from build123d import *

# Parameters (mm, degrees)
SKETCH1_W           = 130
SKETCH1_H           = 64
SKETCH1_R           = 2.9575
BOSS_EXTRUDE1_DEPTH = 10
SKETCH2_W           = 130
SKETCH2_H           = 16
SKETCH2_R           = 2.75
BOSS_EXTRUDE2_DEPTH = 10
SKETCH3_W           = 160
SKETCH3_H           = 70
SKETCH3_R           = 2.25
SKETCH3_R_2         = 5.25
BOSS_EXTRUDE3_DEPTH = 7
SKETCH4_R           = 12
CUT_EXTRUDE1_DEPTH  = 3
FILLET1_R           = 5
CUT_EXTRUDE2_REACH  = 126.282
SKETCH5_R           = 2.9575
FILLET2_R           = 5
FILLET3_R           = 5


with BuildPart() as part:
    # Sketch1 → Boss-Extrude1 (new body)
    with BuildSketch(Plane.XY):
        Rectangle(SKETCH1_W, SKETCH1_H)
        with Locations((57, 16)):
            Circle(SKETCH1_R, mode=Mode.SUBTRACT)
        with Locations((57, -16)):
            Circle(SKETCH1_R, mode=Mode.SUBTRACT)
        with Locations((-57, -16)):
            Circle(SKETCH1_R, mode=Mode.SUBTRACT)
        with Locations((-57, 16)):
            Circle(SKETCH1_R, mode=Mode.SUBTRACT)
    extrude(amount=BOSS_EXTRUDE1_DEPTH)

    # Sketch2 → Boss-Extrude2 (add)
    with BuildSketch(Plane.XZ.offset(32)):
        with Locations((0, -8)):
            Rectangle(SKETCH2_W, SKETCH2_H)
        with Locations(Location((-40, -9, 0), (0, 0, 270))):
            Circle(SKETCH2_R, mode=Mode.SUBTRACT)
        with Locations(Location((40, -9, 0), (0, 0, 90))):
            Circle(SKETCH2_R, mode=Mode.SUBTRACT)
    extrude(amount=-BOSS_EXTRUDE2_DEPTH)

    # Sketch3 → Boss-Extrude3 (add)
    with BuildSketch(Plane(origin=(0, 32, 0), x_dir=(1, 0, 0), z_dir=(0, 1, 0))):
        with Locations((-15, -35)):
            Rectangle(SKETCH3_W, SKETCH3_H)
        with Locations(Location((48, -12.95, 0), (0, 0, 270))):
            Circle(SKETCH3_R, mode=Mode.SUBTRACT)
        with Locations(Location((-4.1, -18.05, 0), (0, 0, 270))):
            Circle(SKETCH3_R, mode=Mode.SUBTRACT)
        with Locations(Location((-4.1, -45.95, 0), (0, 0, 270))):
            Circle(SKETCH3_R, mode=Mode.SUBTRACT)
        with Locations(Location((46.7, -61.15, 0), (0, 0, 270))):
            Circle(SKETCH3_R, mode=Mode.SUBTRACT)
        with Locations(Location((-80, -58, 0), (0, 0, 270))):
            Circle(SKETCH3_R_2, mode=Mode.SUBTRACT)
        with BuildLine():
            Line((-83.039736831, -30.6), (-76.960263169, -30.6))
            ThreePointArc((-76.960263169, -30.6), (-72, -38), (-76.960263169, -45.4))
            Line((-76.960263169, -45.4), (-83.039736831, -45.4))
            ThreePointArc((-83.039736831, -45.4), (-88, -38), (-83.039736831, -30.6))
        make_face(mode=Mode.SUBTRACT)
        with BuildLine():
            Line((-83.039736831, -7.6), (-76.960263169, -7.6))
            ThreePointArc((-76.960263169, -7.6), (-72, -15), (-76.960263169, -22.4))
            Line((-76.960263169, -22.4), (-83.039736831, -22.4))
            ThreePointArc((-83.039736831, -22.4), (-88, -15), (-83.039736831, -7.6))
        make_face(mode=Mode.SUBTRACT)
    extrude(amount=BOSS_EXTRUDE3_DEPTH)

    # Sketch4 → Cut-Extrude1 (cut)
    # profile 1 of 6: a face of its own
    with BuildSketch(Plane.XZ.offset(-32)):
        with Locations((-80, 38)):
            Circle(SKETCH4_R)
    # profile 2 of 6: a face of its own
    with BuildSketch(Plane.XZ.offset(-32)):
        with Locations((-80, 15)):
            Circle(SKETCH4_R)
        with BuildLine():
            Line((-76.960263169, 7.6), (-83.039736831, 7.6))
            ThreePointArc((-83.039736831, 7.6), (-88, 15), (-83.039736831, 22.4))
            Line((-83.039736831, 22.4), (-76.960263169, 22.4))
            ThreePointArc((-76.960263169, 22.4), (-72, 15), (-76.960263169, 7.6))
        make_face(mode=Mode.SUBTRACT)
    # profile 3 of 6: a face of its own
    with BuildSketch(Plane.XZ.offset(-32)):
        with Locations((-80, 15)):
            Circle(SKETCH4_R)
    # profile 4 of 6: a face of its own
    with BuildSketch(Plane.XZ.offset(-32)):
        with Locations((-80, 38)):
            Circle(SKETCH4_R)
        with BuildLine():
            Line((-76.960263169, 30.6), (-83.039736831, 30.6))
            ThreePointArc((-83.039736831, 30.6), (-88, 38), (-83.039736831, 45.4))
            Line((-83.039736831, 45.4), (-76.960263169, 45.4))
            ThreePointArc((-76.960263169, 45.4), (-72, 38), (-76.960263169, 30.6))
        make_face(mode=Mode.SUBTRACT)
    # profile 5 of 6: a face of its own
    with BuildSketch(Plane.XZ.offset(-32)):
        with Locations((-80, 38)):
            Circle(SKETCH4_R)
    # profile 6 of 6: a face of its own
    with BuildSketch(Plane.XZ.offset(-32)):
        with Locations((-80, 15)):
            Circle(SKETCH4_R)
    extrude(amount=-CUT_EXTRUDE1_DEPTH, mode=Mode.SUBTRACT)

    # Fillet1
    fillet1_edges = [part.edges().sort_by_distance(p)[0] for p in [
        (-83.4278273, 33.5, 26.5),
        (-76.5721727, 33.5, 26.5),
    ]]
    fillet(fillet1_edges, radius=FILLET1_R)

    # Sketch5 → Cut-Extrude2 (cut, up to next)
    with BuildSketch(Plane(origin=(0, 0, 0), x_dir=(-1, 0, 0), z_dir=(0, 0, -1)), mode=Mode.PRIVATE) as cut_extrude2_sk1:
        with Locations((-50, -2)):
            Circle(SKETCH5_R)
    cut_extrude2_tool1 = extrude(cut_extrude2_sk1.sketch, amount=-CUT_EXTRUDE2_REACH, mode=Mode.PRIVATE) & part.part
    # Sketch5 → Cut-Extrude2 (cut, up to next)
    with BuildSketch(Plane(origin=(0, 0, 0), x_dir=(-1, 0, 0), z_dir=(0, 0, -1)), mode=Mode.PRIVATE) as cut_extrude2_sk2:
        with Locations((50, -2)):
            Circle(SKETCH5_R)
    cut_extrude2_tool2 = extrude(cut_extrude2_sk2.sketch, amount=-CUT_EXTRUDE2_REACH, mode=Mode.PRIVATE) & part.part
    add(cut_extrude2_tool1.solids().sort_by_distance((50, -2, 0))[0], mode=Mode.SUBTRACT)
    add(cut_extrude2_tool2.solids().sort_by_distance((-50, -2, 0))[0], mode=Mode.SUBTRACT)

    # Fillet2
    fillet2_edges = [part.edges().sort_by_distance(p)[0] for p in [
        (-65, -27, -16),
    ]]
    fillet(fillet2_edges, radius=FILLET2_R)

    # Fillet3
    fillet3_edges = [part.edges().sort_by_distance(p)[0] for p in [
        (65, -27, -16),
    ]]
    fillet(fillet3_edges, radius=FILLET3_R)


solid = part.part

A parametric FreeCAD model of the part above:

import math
import FreeCAD as App
import Part
import Sketcher
from FreeCAD import Vector


def edges_at(feature, points):
    """Names of the edges that pass closest to the given points."""
    edges = feature.Shape.Edges
    near = lambda p: min(range(len(edges)), key=lambda i: edges[i].distToShape(Part.Vertex(*p))[0])
    return sorted({f"Edge{near(p) + 1}" for p in points})


def add_polygon(sketch, points):
    """Adds a closed chain of lines whose ends are joined by coincident constraints."""
    first, n = sketch.GeometryCount, len(points)
    for a, b in zip(points, points[1:] + points[:1]):
        sketch.addGeometry(Part.LineSegment(App.Vector(*a, 0), App.Vector(*b, 0)), False)
    for i in range(n):
        sketch.addConstraint(Sketcher.Constraint("Coincident", first + i, 2, first + (i + 1) % n, 1))

doc = App.newDocument("Part")
body = doc.addObject("PartDesign::Body", "Body")

# Sketch on XY plane
sketch1 = body.newObject("Sketcher::SketchObject", "Sketch")
sketch1.AttachmentSupport = (doc.getObject("XY_Plane"), [""])
sketch1.MapMode = "FlatFace"
add_polygon(sketch1, [(-65, 32), (-65, -32), (65, -32), (65, 32)])  # lines 0-3
sketch1.addGeometry(Part.Circle(Vector(-57, -16, 0), Vector(0, 0, 1), 3), False)  # 4
sketch1.addGeometry(Part.Circle(Vector(57, -16, 0), Vector(0, 0, 1), 3), False)  # 5
sketch1.addGeometry(Part.Circle(Vector(-57, 16, 0), Vector(0, 0, 1), 3), False)  # 6
sketch1.addGeometry(Part.Circle(Vector(57, 16, 0), Vector(0, 0, 1), 3), False)  # 7
sketch1.addConstraint([
    Sketcher.Constraint("Vertical", 0),
    Sketcher.Constraint("Horizontal", 1),
    Sketcher.Constraint("Vertical", 2),
    Sketcher.Constraint("Horizontal", 3),
    Sketcher.Constraint("Equal", 4, 5),
    Sketcher.Constraint("Equal", 5, 6),
    Sketcher.Constraint("Equal", 6, 7),
    Sketcher.Constraint("Symmetric", 5, 3, 6, 3, -1, 1),
    Sketcher.Constraint("Symmetric", 4, 3, 7, 3, -1, 1),
    Sketcher.Constraint("Symmetric", 0, 2, 2, 2, -1, 1),
    Sketcher.Constraint("Symmetric", 4, 3, 5, 3, -2),
    Sketcher.Constraint("DistanceX", 1, 1, 1, 2, 130.0),
    Sketcher.Constraint("DistanceY", 0, 2, 0, 1, 64.0),
    Sketcher.Constraint("Diameter", 4, 5.915),
    Sketcher.Constraint("DistanceX", 4, 3, -1, 1, 57.0),
    Sketcher.Constraint("DistanceY", 4, 3, -1, 1, 16.0),
])
pad1 = body.newObject("PartDesign::Pad", "Pad")
pad1.Profile = sketch1
pad1.Length = 10

# Sketch on XZ plane
sketch2 = body.newObject("Sketcher::SketchObject", "Sketch001")
sketch2.AttachmentSupport = (doc.getObject("XZ_Plane"), [""])
sketch2.MapMode = "FlatFace"
sketch2.AttachmentOffset = App.Placement(Vector(0, 0, 32), App.Rotation())
add_polygon(sketch2, [(-65, 0), (-65, -16), (65, -16), (65, 0)])  # lines 0-3
sketch2.addGeometry(Part.Circle(Vector(-40, -9, 0), Vector(0, 0, 1), 2.8), False)  # 4
sketch2.addGeometry(Part.Circle(Vector(40, -9, 0), Vector(0, 0, 1), 2.8), False)  # 5
sketch2.addConstraint([
    Sketcher.Constraint("Vertical", 0),
    Sketcher.Constraint("Horizontal", 1),
    Sketcher.Constraint("Vertical", 2),
    Sketcher.Constraint("Horizontal", 3),
    Sketcher.Constraint("Equal", 4, 5),
    Sketcher.Constraint("Symmetric", 2, 2, 3, 2, -1, 1),
    Sketcher.Constraint("Symmetric", 4, 3, 5, 3, -2),
    Sketcher.Constraint("Diameter", 4, 5.5),
    Sketcher.Constraint("DistanceX", 1, 1, 1, 2, 130.0),
    Sketcher.Constraint("DistanceY", 0, 2, 0, 1, 16.0),
    Sketcher.Constraint("DistanceX", 4, 3, -1, 1, 40.0),
    Sketcher.Constraint("DistanceY", 4, 3, -1, 1, 9.0),
])
pad2 = body.newObject("PartDesign::Pad", "Pad001")
pad2.Profile = sketch2
pad2.Length = 10
pad2.Reversed = True

# Sketch on XZ plane
sketch3 = body.newObject("Sketcher::SketchObject", "Sketch002")
sketch3.AttachmentSupport = (doc.getObject("XZ_Plane"), [""])
sketch3.MapMode = "FlatFace"
sketch3.AttachmentOffset = App.Placement(Vector(0, 0, -32), App.Rotation())
add_polygon(sketch3, [(-95, 0), (-95, 70), (65, 70), (65, 0)])  # lines 0-3
sketch3.addGeometry(Part.Circle(Vector(-80, 58, 0), Vector(0, 0, 1), 5.2), False)  # 4
sketch3.addGeometry(Part.ArcOfCircle(Part.Circle(Vector(-80, 38, 0), Vector(0, 0, 1), 8), math.radians(112), math.radians(248)), False)  # 5
sketch3.addGeometry(Part.LineSegment(Vector(-83, 30.6, 0), Vector(-77, 30.6, 0)), False)  # 6
sketch3.addGeometry(Part.ArcOfCircle(Part.Circle(Vector(-80, 38, 0), Vector(0, 0, 1), 8), math.radians(-68), math.radians(68)), False)  # 7
sketch3.addGeometry(Part.LineSegment(Vector(-77, 45.4, 0), Vector(-83, 45.4, 0)), False)  # 8
sketch3.addGeometry(Part.Circle(Vector(46.7, 61.1, 0), Vector(0, 0, 1), 2.2), False)  # 9
sketch3.addGeometry(Part.Circle(Vector(-4.1, 46, 0), Vector(0, 0, 1), 2.2), False)  # 10
sketch3.addGeometry(Part.ArcOfCircle(Part.Circle(Vector(-80, 15, 0), Vector(0, 0, 1), 8), math.radians(112), math.radians(248)), False)  # 11
sketch3.addGeometry(Part.LineSegment(Vector(-83, 7.6, 0), Vector(-77, 7.6, 0)), False)  # 12
sketch3.addGeometry(Part.ArcOfCircle(Part.Circle(Vector(-80, 15, 0), Vector(0, 0, 1), 8), math.radians(-68), math.radians(68)), False)  # 13
sketch3.addGeometry(Part.LineSegment(Vector(-77, 22.4, 0), Vector(-83, 22.4, 0)), False)  # 14
sketch3.addGeometry(Part.Circle(Vector(-4.1, 18.1, 0), Vector(0, 0, 1), 2.2), False)  # 15
sketch3.addGeometry(Part.Circle(Vector(48, 12.9, 0), Vector(0, 0, 1), 2.2), False)  # 16
sketch3.addConstraint([
    Sketcher.Constraint("Coincident", 5, 2, 6, 1),
    Sketcher.Constraint("Coincident", 6, 2, 7, 1),
    Sketcher.Constraint("Coincident", 7, 2, 8, 1),
    Sketcher.Constraint("Coincident", 8, 2, 5, 1),
    Sketcher.Constraint("Coincident", 11, 2, 12, 1),
    Sketcher.Constraint("Coincident", 12, 2, 13, 1),
    Sketcher.Constraint("Coincident", 13, 2, 14, 1),
    Sketcher.Constraint("Coincident", 14, 2, 11, 1),
    Sketcher.Constraint("Vertical", 0),
    Sketcher.Constraint("Horizontal", 1),
    Sketcher.Constraint("Vertical", 2),
    Sketcher.Constraint("Horizontal", 3),
    Sketcher.Constraint("Horizontal", 6),
    Sketcher.Constraint("Horizontal", 8),
    Sketcher.Constraint("Horizontal", 12),
    Sketcher.Constraint("Horizontal", 14),
    Sketcher.Constraint("Coincident", 7, 3, 5, 3),
    Sketcher.Constraint("Coincident", 13, 3, 11, 3),
    Sketcher.Constraint("Equal", 5, 7),
    Sketcher.Constraint("Equal", 9, 10),
    Sketcher.Constraint("Equal", 7, 11),
    Sketcher.Constraint("Equal", 11, 13),
    Sketcher.Constraint("Equal", 10, 15),
    Sketcher.Constraint("Equal", 15, 16),
    Sketcher.Constraint("PointOnObject", 2, 2, -1),
    Sketcher.Constraint("Vertical", 4, 3, 5, 3),
    Sketcher.Constraint("Vertical", 7, 3, 11, 3),
    Sketcher.Constraint("Vertical", 10, 3, 15, 3),
    Sketcher.Constraint("Vertical", 6, 2, 7, 2),
    Sketcher.Constraint("Vertical", 8, 2, 11, 2),
    Sketcher.Constraint("Vertical", 12, 2, 13, 2),
    Sketcher.Constraint("Radius", 5, 8.0),
    Sketcher.Constraint("Diameter", 4, 10.5),
    Sketcher.Constraint("Diameter", 9, 4.5),
    Sketcher.Constraint("DistanceX", 1, 1, 1, 2, 160.0),
    Sketcher.Constraint("DistanceY", 0, 1, 0, 2, 70.0),
    Sketcher.Constraint("DistanceX", 4, 3, -1, 1, 80.0),
    Sketcher.Constraint("DistanceY", -1, 1, 4, 3, 58.0),
    Sketcher.Constraint("DistanceY", -1, 1, 5, 3, 38.0),
    Sketcher.Constraint("DistanceY", -1, 1, 11, 3, 15.0),
    Sketcher.Constraint("DistanceX", -1, 1, 16, 3, 48.0),
    Sketcher.Constraint("DistanceX", 0, 2, -1, 1, 95.0),
    Sketcher.Constraint("DistanceY", 16, 3, 10, 3, 33.0),
    Sketcher.Constraint("DistanceX", -1, 1, 9, 3, 46.7),
    Sketcher.Constraint("DistanceX", 10, 3, -1, 1, 4.1),
    Sketcher.Constraint("DistanceY", -1, 1, 5, 2, 30.6),
    Sketcher.Constraint("DistanceY", 10, 3, 9, 3, 15.2),
    Sketcher.Constraint("DistanceY", 15, 3, 10, 3, 27.9),
    Sketcher.Constraint("DistanceY", -1, 1, 9, 3, 61.15),
])
pad3 = body.newObject("PartDesign::Pad", "Pad002")
pad3.Profile = sketch3
pad3.Length = 7
pad3.Reversed = True

# Sketch on XZ plane
sketch4 = body.newObject("Sketcher::SketchObject", "Sketch003")
sketch4.AttachmentSupport = (doc.getObject("XZ_Plane"), [""])
sketch4.MapMode = "FlatFace"
sketch4.AttachmentOffset = App.Placement(Vector(0, 0, -32), App.Rotation())
sketch4.addGeometry([
    Part.ArcOfCircle(Part.Circle(Vector(-80, 38, 0), Vector(0, 0, 1), 12), math.radians(-73), math.radians(253)),
    Part.ArcOfCircle(Part.Circle(Vector(-80, 15, 0), Vector(0, 0, 1), 12), math.radians(107), math.radians(433)),
], False)
sketch4.addConstraint([
    Sketcher.Constraint("Coincident", 0, 1, 1, 2),
    Sketcher.Constraint("Coincident", 1, 1, 0, 2),
    Sketcher.Constraint("Equal", 0, 1),
    Sketcher.Constraint("Horizontal", 0, 1, 1, 1),
    Sketcher.Constraint("Radius", 0, 12.0),
    Sketcher.Constraint("DistanceX", 0, 3, -1, 1, 80.0),
    Sketcher.Constraint("DistanceY", -1, 1, 0, 3, 38.0),
    Sketcher.Constraint("DistanceY", -1, 1, 1, 3, 15.0),
])
pocket1 = body.newObject("PartDesign::Pocket", "Pocket")
pocket1.Profile = sketch4
pocket1.Length = 3
doc.recompute()

fillet = body.newObject("PartDesign::Fillet", "Fillet")
fillet.Base = (pocket1, edges_at(pocket1, [(-83.428, 33.5, 26.5), (-76.572, 33.5, 26.5)]))
fillet.Radius = 5

# Sketch on XY plane
sketch5 = body.newObject("Sketcher::SketchObject", "Sketch004")
sketch5.AttachmentSupport = (doc.getObject("XY_Plane"), [""])
sketch5.MapMode = "FlatFace"
sketch5.addGeometry(Part.Circle(Vector(50, -2, 0), Vector(0, 0, 1), 3), False)
sketch5.addConstraint([
    Sketcher.Constraint("Diameter", 0, 5.915),
    Sketcher.Constraint("DistanceX", -1, 1, 0, 3, 50.0),
    Sketcher.Constraint("DistanceY", 0, 3, -1, 1, 2.0),
])
pocket2 = body.newObject("PartDesign::Pocket", "Pocket001")
pocket2.Profile = sketch5
pocket2.Type = "UpToFirst"
pocket2.Reversed = True

# Sketch on XY plane
sketch6 = body.newObject("Sketcher::SketchObject", "Sketch005")
sketch6.AttachmentSupport = (doc.getObject("XY_Plane"), [""])
sketch6.MapMode = "FlatFace"
sketch6.addGeometry(Part.Circle(Vector(-50, -2, 0), Vector(0, 0, 1), 3), False)
sketch6.addConstraint([
    Sketcher.Constraint("Diameter", 0, 5.915),
    Sketcher.Constraint("DistanceX", 0, 3, -1, 1, 50.0),
    Sketcher.Constraint("DistanceY", 0, 3, -1, 1, 2.0),
])
pocket3 = body.newObject("PartDesign::Pocket", "Pocket002")
pocket3.Profile = sketch6
pocket3.Type = "UpToFirst"
pocket3.Reversed = True
doc.recompute()

fillet2 = body.newObject("PartDesign::Fillet", "Fillet001")
fillet2.Base = (pocket3, edges_at(pocket3, [(-65, -27, -16)]))
fillet2.Radius = 5
doc.recompute()

fillet3 = body.newObject("PartDesign::Fillet", "Fillet002")
fillet3.Base = (fillet2, edges_at(fillet2, [(65, -27, -16)]))
fillet3.Radius = 5

doc.recompute()
